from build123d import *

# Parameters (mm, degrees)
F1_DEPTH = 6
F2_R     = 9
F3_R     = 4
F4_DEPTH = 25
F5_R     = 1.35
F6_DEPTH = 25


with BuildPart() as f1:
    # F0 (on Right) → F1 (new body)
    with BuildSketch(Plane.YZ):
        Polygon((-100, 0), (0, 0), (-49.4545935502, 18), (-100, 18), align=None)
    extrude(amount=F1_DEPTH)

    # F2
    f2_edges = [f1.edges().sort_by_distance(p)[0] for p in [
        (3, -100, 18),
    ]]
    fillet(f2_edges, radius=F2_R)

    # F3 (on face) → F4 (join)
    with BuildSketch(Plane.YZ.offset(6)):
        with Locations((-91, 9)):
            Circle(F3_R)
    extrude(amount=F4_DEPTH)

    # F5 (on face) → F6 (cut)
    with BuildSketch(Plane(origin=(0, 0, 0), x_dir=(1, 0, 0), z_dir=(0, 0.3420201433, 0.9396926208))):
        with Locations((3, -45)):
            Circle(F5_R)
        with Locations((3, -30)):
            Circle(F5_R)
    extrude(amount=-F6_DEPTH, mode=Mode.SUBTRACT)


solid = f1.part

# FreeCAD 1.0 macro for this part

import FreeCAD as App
import Part
import Sketcher

V = App.Vector
Q = App.Units.Quantity


def edges_at(feature, points):
    """Names of the edges that pass closest to the given points."""
    edges = feature.Shape.Edges
    near = lambda p: min(range(len(edges)), key=lambda i: edges[i].distToShape(Part.Vertex(*p))[0])
    return sorted({f"Edge{near(p) + 1}" for p in points})


def add_polygon(sketch, points):
    """Adds a closed chain of lines whose ends are joined by coincident constraints."""
    first, n = sketch.GeometryCount, len(points)
    for a, b in zip(points, points[1:] + points[:1]):
        sketch.addGeometry(Part.LineSegment(App.Vector(*a, 0), App.Vector(*b, 0)), False)
    for i in range(n):
        sketch.addConstraint(Sketcher.Constraint("Coincident", first + i, 2, first + (i + 1) % n, 1))

doc = App.newDocument("Part")
body = doc.addObject("PartDesign::Body", "Body")

sketch1 = doc.addObject("Sketcher::SketchObject", "Sketch")
body.addObject(sketch1)
sketch1.AttachmentSupport = (doc.YZ_Plane, [""])
sketch1.MapMode = "FlatFace"
add_polygon(sketch1, [(-100, 0), (0, 0), (-49, 18), (-100, 18)])
sketch1.addConstraint(Sketcher.Constraint("Horizontal", 0))
sketch1.addConstraint(Sketcher.Constraint("Horizontal", 2))
sketch1.addConstraint(Sketcher.Constraint("Vertical", 3))
sketch1.addConstraint(Sketcher.Constraint("Coincident", 0, 2, -1, 1))
sketch1.addConstraint(Sketcher.Constraint("DistanceX", 0, 1, 0, 2, Q("100 mm")))
sketch1.addConstraint(Sketcher.Constraint("DistanceY", 3, 2, 3, 1, Q("18 mm")))
sketch1.addConstraint(Sketcher.Constraint("Angle", 1, Q("160 deg")))
pad1 = doc.addObject("PartDesign::Pad", "Pad")
body.addObject(pad1)
pad1.Profile = sketch1
pad1.Length = 6
doc.recompute()

fillet = doc.addObject("PartDesign::Fillet", "Fillet")
body.addObject(fillet)
fillet.Base = (pad1, edges_at(pad1, [(3, -100, 18)]))
fillet.Radius = 9

sketch2 = doc.addObject("Sketcher::SketchObject", "Sketch001")
body.addObject(sketch2)
sketch2.AttachmentSupport = (doc.YZ_Plane, [""])
sketch2.MapMode = "FlatFace"
sketch2.AttachmentOffset = App.Placement(V(0, 0, 6), App.Rotation())
sketch2.addGeometry(Part.Circle(V(-91, 9, 0), V(0, 0, 1), 4), False)
sketch2.addConstraint(Sketcher.Constraint("Diameter", 0, Q("8 mm")))
sketch2.addConstraint(Sketcher.Constraint("DistanceX", 0, 3, -1, 1, Q("91 mm")))
sketch2.addConstraint(Sketcher.Constraint("DistanceY", -1, 1, 0, 3, Q("9 mm")))
pad2 = doc.addObject("PartDesign::Pad", "Pad001")
body.addObject(pad2)
pad2.Profile = sketch2
pad2.Length = 25

sketch3 = doc.addObject("Sketcher::SketchObject", "Sketch002")
body.addObject(sketch3)
sketch3.Placement = App.Placement(V(0, 0, 0), App.Rotation(V(1, 0, 0), V(0, 0.939692621, -0.342020143), V(0, 0.342020143, 0.939692621), "ZXY"))
sketch3.addGeometry(Part.Circle(V(3, -45, 0), V(0, 0, 1), 1.4), False)
sketch3.addGeometry(Part.Circle(V(3, -30, 0), V(0, 0, 1), 1.4), False)
sketch3.addConstraint(Sketcher.Constraint("Equal", 0, 1))
sketch3.addConstraint(Sketcher.Constraint("Vertical", 0, 3, 1, 3))
sketch3.addConstraint(Sketcher.Constraint("Diameter", 0, Q("2.7 mm")))
sketch3.addConstraint(Sketcher.Constraint("DistanceX", -1, 1, 0, 3, Q("3 mm")))
sketch3.addConstraint(Sketcher.Constraint("DistanceY", 0, 3, -1, 1, Q("45 mm")))
sketch3.addConstraint(Sketcher.Constraint("DistanceY", 1, 3, -1, 1, Q("30 mm")))
pocket1 = doc.addObject("PartDesign::Pocket", "Pocket")
body.addObject(pocket1)
pocket1.Profile = sketch3
pocket1.Length = 25

doc.recompute()
